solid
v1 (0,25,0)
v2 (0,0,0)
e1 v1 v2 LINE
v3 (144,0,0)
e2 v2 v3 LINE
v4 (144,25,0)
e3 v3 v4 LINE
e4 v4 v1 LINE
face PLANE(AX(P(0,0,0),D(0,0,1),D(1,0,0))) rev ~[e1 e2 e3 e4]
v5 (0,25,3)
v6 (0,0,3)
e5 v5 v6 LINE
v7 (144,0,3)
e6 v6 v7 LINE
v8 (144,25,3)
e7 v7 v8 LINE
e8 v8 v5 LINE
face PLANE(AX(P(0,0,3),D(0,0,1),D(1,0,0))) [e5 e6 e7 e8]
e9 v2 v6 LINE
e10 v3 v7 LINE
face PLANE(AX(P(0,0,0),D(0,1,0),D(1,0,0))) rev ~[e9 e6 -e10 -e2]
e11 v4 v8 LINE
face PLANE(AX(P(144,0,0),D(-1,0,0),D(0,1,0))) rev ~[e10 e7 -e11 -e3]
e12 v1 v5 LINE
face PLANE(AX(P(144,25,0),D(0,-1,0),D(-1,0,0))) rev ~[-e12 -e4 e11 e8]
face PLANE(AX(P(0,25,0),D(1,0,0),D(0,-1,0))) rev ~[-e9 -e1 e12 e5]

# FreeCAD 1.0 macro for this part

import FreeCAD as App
import Part
import Sketcher

doc = App.newDocument("Part")
params = doc.addObject("Spreadsheet::Sheet", "Params")
for row, (alias, value) in enumerate([
    ("sketch1_width", "144 mm"),
    ("sketch1_height", "25 mm"),
    ("pad1_length", "3 mm"),
], start=1):
    params.set(f"A{row}", alias)
    params.set(f"B{row}", "=" + value)
    params.setAlias(f"B{row}", alias)

body = doc.addObject("PartDesign::Body", "Body")

# Sketch on XY plane
sketch1 = doc.addObject("Sketcher::SketchObject", "Sketch")
body.addObject(sketch1)
sketch1.AttachmentSupport = (doc.XY_Plane, [""])
sketch1.MapMode = "FlatFace"
sketch1.addGeometry([
    Part.LineSegment(App.Vector(0, 25, 0), App.Vector(0, 0, 0)),
    Part.LineSegment(App.Vector(0, 0, 0), App.Vector(144, 0, 0)),
    Part.LineSegment(App.Vector(144, 0, 0), App.Vector(144, 25, 0)),
    Part.LineSegment(App.Vector(144, 25, 0), App.Vector(0, 25, 0)),
], False)
sketch1.addConstraint([
    Sketcher.Constraint("Coincident", 0, 2, 1, 1),
    Sketcher.Constraint("Coincident", 1, 2, 2, 1),
    Sketcher.Constraint("Coincident", 2, 2, 3, 1),
    Sketcher.Constraint("Coincident", 3, 2, 0, 1),
    Sketcher.Constraint("Vertical", 0),
    Sketcher.Constraint("Horizontal", 1),
    Sketcher.Constraint("Vertical", 2),
    Sketcher.Constraint("Horizontal", 3),
    Sketcher.Constraint("Coincident", 0, 2, -1, 1),
    Sketcher.Constraint("DistanceX", 1, 1, 1, 2, 144.0),
    Sketcher.Constraint("DistanceY", 0, 2, 0, 1, 25.0),
])
sketch1.setExpression("Constraints[9]", "Params.sketch1_width")
sketch1.setExpression("Constraints[10]", "Params.sketch1_height")
pad1 = doc.addObject("PartDesign::Pad", "Pad")
body.addObject(pad1)
pad1.Profile = sketch1
pad1.setExpression("Length", "Params.pad1_length")

doc.recompute()
